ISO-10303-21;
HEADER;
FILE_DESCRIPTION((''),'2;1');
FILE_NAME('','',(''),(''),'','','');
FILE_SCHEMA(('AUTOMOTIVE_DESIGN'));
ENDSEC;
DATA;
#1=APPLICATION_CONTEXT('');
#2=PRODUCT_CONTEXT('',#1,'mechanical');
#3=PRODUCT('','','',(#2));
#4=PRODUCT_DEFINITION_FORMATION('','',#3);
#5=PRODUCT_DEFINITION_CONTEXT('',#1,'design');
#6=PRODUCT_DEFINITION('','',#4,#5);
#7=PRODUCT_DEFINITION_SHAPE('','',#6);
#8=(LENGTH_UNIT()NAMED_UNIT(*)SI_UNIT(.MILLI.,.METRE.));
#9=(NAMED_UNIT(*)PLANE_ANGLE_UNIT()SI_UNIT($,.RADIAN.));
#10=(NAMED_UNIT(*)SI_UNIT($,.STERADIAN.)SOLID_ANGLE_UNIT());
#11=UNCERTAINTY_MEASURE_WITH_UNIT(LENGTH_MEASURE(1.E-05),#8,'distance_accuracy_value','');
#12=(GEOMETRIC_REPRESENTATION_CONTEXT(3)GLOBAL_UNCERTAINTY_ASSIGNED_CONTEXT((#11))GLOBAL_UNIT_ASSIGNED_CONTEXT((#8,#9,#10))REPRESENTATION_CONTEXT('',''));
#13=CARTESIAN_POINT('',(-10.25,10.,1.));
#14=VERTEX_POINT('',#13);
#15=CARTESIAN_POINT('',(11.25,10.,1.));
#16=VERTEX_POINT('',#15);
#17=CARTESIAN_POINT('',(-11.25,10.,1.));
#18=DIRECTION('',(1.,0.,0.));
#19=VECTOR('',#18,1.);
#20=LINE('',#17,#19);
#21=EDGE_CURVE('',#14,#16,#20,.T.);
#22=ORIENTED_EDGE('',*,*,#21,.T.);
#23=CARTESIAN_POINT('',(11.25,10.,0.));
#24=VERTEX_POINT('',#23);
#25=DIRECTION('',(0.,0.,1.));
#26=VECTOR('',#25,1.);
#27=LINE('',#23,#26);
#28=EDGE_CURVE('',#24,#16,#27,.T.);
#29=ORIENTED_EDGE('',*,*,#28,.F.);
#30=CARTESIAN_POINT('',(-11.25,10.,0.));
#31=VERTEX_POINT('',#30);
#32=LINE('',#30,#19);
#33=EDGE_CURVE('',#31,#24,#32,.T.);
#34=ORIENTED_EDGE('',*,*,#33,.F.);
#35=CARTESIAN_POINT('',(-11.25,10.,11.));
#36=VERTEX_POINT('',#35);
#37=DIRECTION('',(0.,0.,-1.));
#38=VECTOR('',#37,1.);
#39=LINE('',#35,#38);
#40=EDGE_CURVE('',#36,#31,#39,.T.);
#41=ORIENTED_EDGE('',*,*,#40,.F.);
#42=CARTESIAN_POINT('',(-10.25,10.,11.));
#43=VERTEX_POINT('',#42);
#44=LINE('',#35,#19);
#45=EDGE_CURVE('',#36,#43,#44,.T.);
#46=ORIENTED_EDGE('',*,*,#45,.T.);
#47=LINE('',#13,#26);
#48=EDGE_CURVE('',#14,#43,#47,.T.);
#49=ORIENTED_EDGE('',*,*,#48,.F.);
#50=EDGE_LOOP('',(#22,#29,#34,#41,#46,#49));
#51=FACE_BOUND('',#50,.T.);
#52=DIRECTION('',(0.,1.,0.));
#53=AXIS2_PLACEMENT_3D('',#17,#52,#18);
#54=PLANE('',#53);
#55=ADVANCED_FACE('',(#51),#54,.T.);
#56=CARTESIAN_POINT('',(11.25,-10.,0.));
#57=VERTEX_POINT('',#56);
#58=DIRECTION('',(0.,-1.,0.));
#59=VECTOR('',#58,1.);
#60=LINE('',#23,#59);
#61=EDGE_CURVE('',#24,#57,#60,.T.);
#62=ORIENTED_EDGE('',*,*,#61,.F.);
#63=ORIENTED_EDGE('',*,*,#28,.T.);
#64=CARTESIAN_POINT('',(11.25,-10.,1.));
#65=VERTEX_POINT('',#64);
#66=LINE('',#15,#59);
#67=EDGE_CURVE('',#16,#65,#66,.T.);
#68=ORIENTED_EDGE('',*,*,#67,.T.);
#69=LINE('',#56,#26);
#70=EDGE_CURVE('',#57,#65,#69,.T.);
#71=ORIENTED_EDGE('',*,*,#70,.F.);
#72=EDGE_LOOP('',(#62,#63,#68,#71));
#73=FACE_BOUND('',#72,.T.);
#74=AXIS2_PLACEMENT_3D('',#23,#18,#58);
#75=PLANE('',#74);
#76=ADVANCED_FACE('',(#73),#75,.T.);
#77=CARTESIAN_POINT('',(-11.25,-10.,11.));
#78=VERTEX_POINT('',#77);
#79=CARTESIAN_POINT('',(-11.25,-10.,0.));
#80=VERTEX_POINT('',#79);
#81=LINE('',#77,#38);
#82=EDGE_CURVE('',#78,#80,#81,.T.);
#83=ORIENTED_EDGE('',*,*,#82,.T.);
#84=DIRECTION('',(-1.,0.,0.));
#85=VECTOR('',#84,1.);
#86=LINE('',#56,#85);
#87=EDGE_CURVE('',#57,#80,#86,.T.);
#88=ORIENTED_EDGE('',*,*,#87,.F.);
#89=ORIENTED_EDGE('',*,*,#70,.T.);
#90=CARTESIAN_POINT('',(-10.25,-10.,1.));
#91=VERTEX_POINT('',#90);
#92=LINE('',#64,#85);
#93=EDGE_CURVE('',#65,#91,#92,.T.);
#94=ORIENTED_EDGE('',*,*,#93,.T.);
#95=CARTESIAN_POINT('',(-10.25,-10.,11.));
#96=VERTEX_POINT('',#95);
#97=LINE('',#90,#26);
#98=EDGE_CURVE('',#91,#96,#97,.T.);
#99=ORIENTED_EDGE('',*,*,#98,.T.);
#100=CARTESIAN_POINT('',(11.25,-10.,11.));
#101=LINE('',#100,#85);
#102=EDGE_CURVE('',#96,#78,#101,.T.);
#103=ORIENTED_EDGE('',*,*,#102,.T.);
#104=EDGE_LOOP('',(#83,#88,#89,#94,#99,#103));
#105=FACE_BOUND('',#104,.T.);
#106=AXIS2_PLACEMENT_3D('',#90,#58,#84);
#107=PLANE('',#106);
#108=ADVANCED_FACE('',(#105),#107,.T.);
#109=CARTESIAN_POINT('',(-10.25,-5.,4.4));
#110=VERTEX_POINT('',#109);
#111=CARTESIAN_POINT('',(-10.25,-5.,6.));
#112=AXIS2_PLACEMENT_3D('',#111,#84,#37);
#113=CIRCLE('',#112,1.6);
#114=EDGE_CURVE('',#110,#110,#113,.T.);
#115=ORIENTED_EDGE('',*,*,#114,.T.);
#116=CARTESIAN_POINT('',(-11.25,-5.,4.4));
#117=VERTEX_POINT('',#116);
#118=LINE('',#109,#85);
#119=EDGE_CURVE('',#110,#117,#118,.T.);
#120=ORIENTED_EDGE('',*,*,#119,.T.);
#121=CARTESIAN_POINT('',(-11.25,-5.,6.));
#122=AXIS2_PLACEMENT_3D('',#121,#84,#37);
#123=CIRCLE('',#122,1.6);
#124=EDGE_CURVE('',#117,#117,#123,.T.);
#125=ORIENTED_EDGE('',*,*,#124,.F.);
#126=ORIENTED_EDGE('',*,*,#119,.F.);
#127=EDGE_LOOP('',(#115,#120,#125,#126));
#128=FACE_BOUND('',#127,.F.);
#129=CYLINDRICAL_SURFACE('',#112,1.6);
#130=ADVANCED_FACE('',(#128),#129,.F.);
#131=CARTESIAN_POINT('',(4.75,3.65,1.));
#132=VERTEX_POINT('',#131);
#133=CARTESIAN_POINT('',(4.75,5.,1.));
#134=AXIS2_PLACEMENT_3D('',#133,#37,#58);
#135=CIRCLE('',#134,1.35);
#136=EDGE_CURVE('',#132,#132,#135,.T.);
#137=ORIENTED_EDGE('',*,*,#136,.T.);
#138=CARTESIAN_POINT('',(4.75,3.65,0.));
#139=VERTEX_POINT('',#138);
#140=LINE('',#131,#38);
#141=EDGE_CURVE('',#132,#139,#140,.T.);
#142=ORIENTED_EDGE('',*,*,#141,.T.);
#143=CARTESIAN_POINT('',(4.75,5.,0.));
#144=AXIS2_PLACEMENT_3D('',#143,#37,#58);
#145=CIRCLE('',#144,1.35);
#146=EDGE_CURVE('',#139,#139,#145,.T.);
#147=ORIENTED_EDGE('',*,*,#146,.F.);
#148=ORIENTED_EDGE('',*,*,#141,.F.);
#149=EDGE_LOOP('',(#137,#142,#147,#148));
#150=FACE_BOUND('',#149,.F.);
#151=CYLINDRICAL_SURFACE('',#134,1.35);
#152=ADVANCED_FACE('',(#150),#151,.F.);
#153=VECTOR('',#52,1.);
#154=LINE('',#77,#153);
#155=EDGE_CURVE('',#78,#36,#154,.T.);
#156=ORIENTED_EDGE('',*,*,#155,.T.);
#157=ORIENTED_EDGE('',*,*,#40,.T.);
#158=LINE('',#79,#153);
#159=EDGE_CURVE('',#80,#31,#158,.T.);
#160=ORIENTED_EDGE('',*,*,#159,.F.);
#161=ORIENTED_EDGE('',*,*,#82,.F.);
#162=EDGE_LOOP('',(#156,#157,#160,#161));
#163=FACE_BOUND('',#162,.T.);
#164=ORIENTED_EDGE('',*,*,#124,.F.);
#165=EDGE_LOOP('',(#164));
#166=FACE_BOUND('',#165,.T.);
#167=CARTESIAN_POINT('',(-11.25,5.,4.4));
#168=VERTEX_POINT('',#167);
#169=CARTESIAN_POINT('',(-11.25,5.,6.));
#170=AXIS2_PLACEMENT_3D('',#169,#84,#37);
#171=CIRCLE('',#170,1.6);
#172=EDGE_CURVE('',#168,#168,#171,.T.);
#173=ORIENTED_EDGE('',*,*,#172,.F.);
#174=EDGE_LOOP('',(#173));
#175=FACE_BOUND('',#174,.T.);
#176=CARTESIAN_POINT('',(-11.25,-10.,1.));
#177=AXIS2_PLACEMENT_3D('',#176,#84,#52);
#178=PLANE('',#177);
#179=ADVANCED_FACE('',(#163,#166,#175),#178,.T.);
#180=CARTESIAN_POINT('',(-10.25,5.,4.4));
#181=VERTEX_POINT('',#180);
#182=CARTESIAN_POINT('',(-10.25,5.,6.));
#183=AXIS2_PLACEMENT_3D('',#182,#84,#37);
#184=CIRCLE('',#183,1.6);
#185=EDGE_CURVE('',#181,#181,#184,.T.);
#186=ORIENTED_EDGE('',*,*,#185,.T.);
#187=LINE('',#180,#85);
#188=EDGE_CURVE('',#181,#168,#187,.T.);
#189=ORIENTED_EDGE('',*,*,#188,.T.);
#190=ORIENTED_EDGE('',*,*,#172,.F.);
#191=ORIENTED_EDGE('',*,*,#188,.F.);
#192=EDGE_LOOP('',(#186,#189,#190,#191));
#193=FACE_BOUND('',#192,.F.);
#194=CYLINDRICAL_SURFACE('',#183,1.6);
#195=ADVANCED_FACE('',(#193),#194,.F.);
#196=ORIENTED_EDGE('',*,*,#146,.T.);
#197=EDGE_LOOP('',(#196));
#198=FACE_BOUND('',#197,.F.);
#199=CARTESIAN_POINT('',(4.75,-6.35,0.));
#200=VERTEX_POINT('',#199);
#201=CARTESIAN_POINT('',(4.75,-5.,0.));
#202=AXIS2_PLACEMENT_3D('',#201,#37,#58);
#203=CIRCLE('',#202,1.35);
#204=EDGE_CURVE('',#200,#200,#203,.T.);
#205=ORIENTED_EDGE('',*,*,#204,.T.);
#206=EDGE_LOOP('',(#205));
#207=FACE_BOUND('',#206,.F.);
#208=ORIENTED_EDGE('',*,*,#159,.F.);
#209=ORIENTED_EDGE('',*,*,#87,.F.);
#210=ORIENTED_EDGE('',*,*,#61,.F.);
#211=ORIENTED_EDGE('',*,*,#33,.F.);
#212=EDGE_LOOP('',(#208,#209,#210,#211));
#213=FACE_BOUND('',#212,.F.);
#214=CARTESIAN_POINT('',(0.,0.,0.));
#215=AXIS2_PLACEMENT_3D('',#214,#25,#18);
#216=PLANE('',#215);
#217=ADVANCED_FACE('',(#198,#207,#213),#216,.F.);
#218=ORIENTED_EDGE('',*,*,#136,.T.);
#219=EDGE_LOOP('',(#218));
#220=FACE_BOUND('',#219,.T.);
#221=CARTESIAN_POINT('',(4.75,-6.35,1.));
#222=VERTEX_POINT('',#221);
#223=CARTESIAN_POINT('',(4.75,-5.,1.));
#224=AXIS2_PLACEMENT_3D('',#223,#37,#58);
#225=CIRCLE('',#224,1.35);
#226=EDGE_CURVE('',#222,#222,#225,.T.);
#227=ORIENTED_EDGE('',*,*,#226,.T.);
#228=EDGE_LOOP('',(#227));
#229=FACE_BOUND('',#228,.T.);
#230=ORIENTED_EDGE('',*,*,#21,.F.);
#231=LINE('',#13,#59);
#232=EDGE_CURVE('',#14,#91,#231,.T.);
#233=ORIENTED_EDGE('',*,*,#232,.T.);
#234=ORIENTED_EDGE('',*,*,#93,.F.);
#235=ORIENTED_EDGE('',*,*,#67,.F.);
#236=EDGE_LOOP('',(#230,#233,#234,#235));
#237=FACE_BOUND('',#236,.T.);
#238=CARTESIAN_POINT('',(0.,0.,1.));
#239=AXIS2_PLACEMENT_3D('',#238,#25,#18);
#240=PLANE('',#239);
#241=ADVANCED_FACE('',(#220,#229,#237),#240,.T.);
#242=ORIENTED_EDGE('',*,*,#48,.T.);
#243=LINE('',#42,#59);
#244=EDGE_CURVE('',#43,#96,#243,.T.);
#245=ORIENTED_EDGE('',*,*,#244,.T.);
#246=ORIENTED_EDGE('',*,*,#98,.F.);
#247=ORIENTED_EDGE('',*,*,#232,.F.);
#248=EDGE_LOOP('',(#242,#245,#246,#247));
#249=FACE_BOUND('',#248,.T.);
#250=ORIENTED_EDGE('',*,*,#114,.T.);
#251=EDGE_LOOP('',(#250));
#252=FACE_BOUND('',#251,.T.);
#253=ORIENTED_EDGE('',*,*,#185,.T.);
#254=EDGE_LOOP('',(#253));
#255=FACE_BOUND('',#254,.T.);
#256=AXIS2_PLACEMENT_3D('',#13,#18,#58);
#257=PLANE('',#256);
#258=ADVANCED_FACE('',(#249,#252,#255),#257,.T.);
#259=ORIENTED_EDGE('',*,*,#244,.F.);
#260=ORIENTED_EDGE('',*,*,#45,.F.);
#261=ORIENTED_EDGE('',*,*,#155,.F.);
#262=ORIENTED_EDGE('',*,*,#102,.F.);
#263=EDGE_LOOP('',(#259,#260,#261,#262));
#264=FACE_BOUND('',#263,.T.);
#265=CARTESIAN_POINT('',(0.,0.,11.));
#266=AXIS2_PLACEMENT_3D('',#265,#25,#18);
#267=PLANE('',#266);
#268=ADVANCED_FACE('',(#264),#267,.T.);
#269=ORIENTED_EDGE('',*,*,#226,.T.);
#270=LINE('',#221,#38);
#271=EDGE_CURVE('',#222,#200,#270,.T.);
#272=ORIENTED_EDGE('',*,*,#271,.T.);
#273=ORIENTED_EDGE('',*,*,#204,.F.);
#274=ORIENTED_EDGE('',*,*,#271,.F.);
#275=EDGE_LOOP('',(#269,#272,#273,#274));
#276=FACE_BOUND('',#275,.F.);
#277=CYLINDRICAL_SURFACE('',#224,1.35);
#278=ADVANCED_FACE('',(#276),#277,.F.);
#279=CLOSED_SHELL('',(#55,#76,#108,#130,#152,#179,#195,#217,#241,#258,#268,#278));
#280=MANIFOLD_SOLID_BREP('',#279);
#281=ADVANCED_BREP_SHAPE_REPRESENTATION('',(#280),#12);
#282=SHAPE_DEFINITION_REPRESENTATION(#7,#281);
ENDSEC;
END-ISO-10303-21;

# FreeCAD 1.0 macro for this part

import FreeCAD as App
import Part
import Sketcher

V = App.Vector
Q = App.Units.Quantity


def add_polygon(sketch, points):
    """Adds a closed chain of lines whose ends are joined by coincident constraints."""
    first, n = sketch.GeometryCount, len(points)
    for a, b in zip(points, points[1:] + points[:1]):
        sketch.addGeometry(Part.LineSegment(App.Vector(*a, 0), App.Vector(*b, 0)), False)
    for i in range(n):
        sketch.addConstraint(Sketcher.Constraint("Coincident", first + i, 2, first + (i + 1) % n, 1))

doc = App.newDocument("Part")
body = doc.addObject("PartDesign::Body", "Body")

sketch1 = body.newObject("Sketcher::SketchObject", "Sketch")
sketch1.AttachmentSupport = (doc.getObject("XY_Plane"), [""])
sketch1.MapMode = "FlatFace"
add_polygon(sketch1, [(11, 10), (-11, 10), (-11, -10), (11, -10)])
sketch1.addConstraint([
    Sketcher.Constraint("Horizontal", 0),
    Sketcher.Constraint("Vertical", 1),
    Sketcher.Constraint("Horizontal", 2),
    Sketcher.Constraint("Vertical", 3),
    Sketcher.Constraint("Symmetric", 0, 2, 2, 2, -1, 1),
    Sketcher.Constraint("DistanceY", 1, 2, 1, 1, Q("20 mm")),
    Sketcher.Constraint("DistanceX", 0, 2, 0, 1, Q("22.5 mm")),
])
pad1 = body.newObject("PartDesign::Pad", "Pad")
pad1.Profile = sketch1
pad1.Length = 1

sketch2 = body.newObject("Sketcher::SketchObject", "Sketch001")
sketch2.AttachmentSupport = (doc.getObject("XY_Plane"), [""])
sketch2.MapMode = "FlatFace"
sketch2.AttachmentOffset = App.Placement(V(0, 0, 1), App.Rotation())
sketch2.addGeometry([
    Part.Circle(V(4.8, 5, 0), V(0, 0, 1), 1.4),
    Part.Circle(V(4.8, -5, 0), V(0, 0, 1), 1.4),
], False)
sketch2.addConstraint([
    Sketcher.Constraint("Equal", 0, 1),
    Sketcher.Constraint("Symmetric", 0, 3, 1, 3, -1),
    Sketcher.Constraint("Diameter", 0, Q("2.7 mm")),
    Sketcher.Constraint("DistanceY", -1, 1, 0, 3, Q("5 mm")),
    Sketcher.Constraint("DistanceX", -1, 1, 0, 3, Q("4.75 mm")),
])
doc.recompute()
hole = body.newObject("PartDesign::Hole", "Hole")
hole.Profile = sketch2
hole.ThreadType = "None"
hole.Diameter = 2.7
hole.DepthType = "ThroughAll"

sketch3 = body.newObject("Sketcher::SketchObject", "Sketch002")
sketch3.AttachmentSupport = (doc.getObject("XY_Plane"), [""])
sketch3.MapMode = "FlatFace"
sketch3.AttachmentOffset = App.Placement(V(0, 0, 1), App.Rotation())
add_polygon(sketch3, [(-11.2, -10), (-10.2, -10), (-10.2, 10), (-11.2, 10)])
sketch3.addConstraint([
    Sketcher.Constraint("Horizontal", 0),
    Sketcher.Constraint("Vertical", 1),
    Sketcher.Constraint("Horizontal", 2),
    Sketcher.Constraint("Vertical", 3),
    Sketcher.Constraint("DistanceX", 0, 1, 0, 2, Q("1 mm")),
    Sketcher.Constraint("DistanceY", 1, 1, 1, 2, Q("20 mm")),
    Sketcher.Constraint("DistanceY", 0, 2, -1, 1, Q("10 mm")),
    Sketcher.Constraint("DistanceX", 0, 2, -1, 1, Q("10.25 mm")),
])
pad2 = body.newObject("PartDesign::Pad", "Pad001")
pad2.Profile = sketch3
pad2.Length = 10

sketch4 = body.newObject("Sketcher::SketchObject", "Sketch003")
sketch4.AttachmentSupport = (doc.getObject("YZ_Plane"), [""])
sketch4.MapMode = "FlatFace"
sketch4.AttachmentOffset = App.Placement(V(0, 0, -10.25), App.Rotation())
sketch4.addGeometry([
    Part.Circle(V(5, 6, 0), V(0, 0, 1), 1.6),
    Part.Circle(V(-5, 6, 0), V(0, 0, 1), 1.6),
], False)
sketch4.addConstraint([
    Sketcher.Constraint("Equal", 0, 1),
    Sketcher.Constraint("Symmetric", 0, 3, 1, 3, -2),
    Sketcher.Constraint("Diameter", 0, Q("3.2 mm")),
    Sketcher.Constraint("DistanceX", -1, 1, 0, 3, Q("5 mm")),
    Sketcher.Constraint("DistanceY", -1, 1, 0, 3, Q("6 mm")),
])
doc.recompute()
hole2 = body.newObject("PartDesign::Hole", "Hole001")
hole2.Profile = sketch4
hole2.ThreadType = "None"
hole2.Diameter = 3.2
hole2.DepthType = "ThroughAll"

doc.recompute()
